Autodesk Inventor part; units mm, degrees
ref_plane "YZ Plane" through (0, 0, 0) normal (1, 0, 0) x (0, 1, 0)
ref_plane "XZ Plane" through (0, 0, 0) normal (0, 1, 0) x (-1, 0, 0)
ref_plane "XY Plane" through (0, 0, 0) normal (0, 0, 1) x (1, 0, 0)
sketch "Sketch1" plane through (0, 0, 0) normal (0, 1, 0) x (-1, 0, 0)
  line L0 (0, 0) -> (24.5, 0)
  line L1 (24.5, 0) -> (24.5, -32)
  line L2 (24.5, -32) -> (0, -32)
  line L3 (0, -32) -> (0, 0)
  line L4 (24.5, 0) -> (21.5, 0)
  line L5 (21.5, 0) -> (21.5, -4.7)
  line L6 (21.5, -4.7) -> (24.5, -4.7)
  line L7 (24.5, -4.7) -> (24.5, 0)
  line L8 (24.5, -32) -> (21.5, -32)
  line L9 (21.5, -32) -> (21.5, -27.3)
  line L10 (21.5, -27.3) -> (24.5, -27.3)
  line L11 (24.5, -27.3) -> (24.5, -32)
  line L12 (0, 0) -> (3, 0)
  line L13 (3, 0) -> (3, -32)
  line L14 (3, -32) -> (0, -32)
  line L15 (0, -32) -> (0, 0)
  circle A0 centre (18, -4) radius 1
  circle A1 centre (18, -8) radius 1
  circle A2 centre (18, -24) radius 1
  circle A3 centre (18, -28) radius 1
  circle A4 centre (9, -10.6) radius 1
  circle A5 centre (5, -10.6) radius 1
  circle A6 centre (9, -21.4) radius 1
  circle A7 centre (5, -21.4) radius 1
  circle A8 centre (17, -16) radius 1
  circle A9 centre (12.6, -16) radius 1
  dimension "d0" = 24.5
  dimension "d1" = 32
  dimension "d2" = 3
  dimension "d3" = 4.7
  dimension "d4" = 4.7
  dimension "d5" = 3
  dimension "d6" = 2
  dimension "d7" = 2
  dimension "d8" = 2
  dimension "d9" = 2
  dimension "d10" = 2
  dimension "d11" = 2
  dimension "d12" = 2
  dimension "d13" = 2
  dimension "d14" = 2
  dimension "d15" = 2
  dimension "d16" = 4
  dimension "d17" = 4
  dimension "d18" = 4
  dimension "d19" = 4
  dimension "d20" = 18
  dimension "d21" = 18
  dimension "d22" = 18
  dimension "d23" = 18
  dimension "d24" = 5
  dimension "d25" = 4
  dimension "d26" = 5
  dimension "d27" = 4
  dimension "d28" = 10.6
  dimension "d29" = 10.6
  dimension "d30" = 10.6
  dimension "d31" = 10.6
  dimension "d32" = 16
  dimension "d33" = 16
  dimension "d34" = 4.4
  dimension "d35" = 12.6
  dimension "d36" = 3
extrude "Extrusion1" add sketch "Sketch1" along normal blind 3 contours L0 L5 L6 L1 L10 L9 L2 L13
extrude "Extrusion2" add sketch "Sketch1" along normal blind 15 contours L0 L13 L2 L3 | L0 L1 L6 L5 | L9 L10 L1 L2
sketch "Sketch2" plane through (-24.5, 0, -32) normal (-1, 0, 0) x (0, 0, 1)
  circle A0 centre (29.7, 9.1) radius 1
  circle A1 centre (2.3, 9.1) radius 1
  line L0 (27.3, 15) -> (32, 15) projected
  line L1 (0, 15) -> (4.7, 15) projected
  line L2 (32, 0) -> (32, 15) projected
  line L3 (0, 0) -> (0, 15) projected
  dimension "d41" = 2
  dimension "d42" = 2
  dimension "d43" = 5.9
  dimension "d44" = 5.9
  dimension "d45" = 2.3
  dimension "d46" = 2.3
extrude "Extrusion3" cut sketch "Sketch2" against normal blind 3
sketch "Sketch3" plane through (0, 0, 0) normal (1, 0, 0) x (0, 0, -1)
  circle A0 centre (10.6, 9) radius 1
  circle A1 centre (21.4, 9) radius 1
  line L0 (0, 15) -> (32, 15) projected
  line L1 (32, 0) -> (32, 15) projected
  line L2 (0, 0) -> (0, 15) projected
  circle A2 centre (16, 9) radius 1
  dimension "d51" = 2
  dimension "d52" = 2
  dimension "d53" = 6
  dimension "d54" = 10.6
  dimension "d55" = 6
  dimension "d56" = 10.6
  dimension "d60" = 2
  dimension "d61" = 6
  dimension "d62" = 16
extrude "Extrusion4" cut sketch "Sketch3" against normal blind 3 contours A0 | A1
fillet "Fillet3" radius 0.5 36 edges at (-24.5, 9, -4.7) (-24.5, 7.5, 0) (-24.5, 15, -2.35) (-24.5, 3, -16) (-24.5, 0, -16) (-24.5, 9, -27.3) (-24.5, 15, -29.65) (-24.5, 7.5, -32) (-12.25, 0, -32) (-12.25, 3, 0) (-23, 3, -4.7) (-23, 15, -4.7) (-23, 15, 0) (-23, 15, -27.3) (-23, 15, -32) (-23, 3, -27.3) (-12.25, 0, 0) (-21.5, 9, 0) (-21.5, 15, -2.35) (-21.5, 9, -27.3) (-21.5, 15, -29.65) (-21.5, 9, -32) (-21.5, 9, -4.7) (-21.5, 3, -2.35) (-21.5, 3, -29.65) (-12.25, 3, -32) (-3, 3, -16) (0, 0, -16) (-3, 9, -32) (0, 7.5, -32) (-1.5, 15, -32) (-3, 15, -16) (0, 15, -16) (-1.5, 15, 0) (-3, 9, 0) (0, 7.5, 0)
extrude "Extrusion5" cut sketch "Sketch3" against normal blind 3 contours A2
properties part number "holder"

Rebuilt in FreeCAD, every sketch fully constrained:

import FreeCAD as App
import Part
import Sketcher
from FreeCAD import Vector


def edges_at(feature, points):
    """Names of the edges that pass closest to the given points."""
    edges = feature.Shape.Edges
    near = lambda p: min(range(len(edges)), key=lambda i: edges[i].distToShape(Part.Vertex(*p))[0])
    return sorted({f"Edge{near(p) + 1}" for p in points})

doc = App.newDocument("Part")
body = doc.addObject("PartDesign::Body", "Body")

# Sketch on XZ plane
sketch1 = body.newObject("Sketcher::SketchObject", "Sketch")
sketch1.AttachmentSupport = (doc.getObject("XZ_Plane"), [""])
sketch1.MapMode = "FlatFace"
sketch1.addGeometry([
    Part.LineSegment(Vector(-21.5, 0, 0), Vector(-3, 0, 0)),  # 0
    Part.LineSegment(Vector(-3, 0, 0), Vector(-3, -32, 0)),  # 1
    Part.LineSegment(Vector(-3, -32, 0), Vector(-21.5, -32, 0)),  # 2
    Part.LineSegment(Vector(-21.5, -32, 0), Vector(-21.5, -27.3, 0)),  # 3
    Part.LineSegment(Vector(-21.5, -27.3, 0), Vector(-24.5, -27.3, 0)),  # 4
    Part.LineSegment(Vector(-24.5, -27.3, 0), Vector(-24.5, -4.7, 0)),  # 5
    Part.LineSegment(Vector(-24.5, -4.7, 0), Vector(-21.5, -4.7, 0)),  # 6
    Part.LineSegment(Vector(-21.5, -4.7, 0), Vector(-21.5, 0, 0)),  # 7
    Part.Circle(Vector(-5, -21.4, 0), Vector(0, 0, 1), 1),  # 8
    Part.Circle(Vector(-9, -21.4, 0), Vector(0, 0, 1), 1),  # 9
    Part.Circle(Vector(-18, -28, 0), Vector(0, 0, 1), 1),  # 10
    Part.Circle(Vector(-18, -24, 0), Vector(0, 0, 1), 1),  # 11
    Part.Circle(Vector(-5, -10.6, 0), Vector(0, 0, 1), 1),  # 12
    Part.Circle(Vector(-9, -10.6, 0), Vector(0, 0, 1), 1),  # 13
    Part.Circle(Vector(-12.6, -16, 0), Vector(0, 0, 1), 1),  # 14
    Part.Circle(Vector(-17, -16, 0), Vector(0, 0, 1), 1),  # 15
    Part.Circle(Vector(-18, -8, 0), Vector(0, 0, 1), 1),  # 16
    Part.Circle(Vector(-18, -4, 0), Vector(0, 0, 1), 1),  # 17
], False)
sketch1.addConstraint([
    Sketcher.Constraint("Coincident", 0, 2, 1, 1),
    Sketcher.Constraint("Coincident", 1, 2, 2, 1),
    Sketcher.Constraint("Coincident", 2, 2, 3, 1),
    Sketcher.Constraint("Coincident", 3, 2, 4, 1),
    Sketcher.Constraint("Coincident", 4, 2, 5, 1),
    Sketcher.Constraint("Coincident", 5, 2, 6, 1),
    Sketcher.Constraint("Coincident", 6, 2, 7, 1),
    Sketcher.Constraint("Coincident", 7, 2, 0, 1),
    Sketcher.Constraint("Horizontal", 0),
    Sketcher.Constraint("Vertical", 1),
    Sketcher.Constraint("Horizontal", 2),
    Sketcher.Constraint("Vertical", 3),
    Sketcher.Constraint("Horizontal", 4),
    Sketcher.Constraint("Vertical", 5),
    Sketcher.Constraint("Horizontal", 6),
    Sketcher.Constraint("Vertical", 7),
    Sketcher.Constraint("Equal", 8, 9),
    Sketcher.Constraint("Equal", 9, 10),
    Sketcher.Constraint("Equal", 10, 11),
    Sketcher.Constraint("Equal", 11, 12),
    Sketcher.Constraint("Equal", 12, 13),
    Sketcher.Constraint("Equal", 13, 14),
    Sketcher.Constraint("Equal", 14, 15),
    Sketcher.Constraint("Equal", 15, 16),
    Sketcher.Constraint("Equal", 16, 17),
    Sketcher.Constraint("PointOnObject", 0, 2, -1),
    Sketcher.Constraint("Horizontal", 8, 3, 9, 3),
    Sketcher.Constraint("Horizontal", 12, 3, 13, 3),
    Sketcher.Constraint("Horizontal", 14, 3, 15, 3),
    Sketcher.Constraint("Vertical", 10, 3, 11, 3),
    Sketcher.Constraint("Vertical", 8, 3, 12, 3),
    Sketcher.Constraint("Vertical", 9, 3, 13, 3),
    Sketcher.Constraint("Vertical", 11, 3, 16, 3),
    Sketcher.Constraint("Vertical", 16, 3, 17, 3),
    Sketcher.Constraint("Vertical", 3, 2, 6, 2),
    Sketcher.Constraint("Equal", 3, 7),
    Sketcher.Constraint("Diameter", 8, 2.0),
    Sketcher.Constraint("DistanceX", 4, 2, 4, 1, 3.0),
    Sketcher.Constraint("DistanceY", 1, 2, 1, 1, 32.0),
    Sketcher.Constraint("DistanceY", 3, 1, 3, 2, 4.7),
    Sketcher.Constraint("DistanceX", 8, 3, -1, 1, 5.0),
    Sketcher.Constraint("DistanceX", 10, 3, -1, 1, 18.0),
    Sketcher.Constraint("DistanceY", 14, 3, -1, 1, 16.0),
    Sketcher.Constraint("DistanceY", 17, 3, -1, 1, 4.0),
    Sketcher.Constraint("DistanceX", 0, 2, -1, 1, 3.0),
    Sketcher.Constraint("DistanceX", 9, 3, 8, 3, 4.0),
    Sketcher.Constraint("DistanceY", 10, 3, 11, 3, 4.0),
    Sketcher.Constraint("DistanceY", 11, 3, 16, 3, 16.0),
    Sketcher.Constraint("DistanceY", 16, 3, 17, 3, 4.0),
    Sketcher.Constraint("DistanceY", 12, 3, -1, 1, 10.6),
    Sketcher.Constraint("DistanceX", 14, 3, -1, 1, 12.6),
    Sketcher.Constraint("DistanceX", 4, 2, -1, 1, 24.5),
    Sketcher.Constraint("DistanceX", 15, 3, 14, 3, 4.4),
    Sketcher.Constraint("DistanceY", 1, 2, 8, 3, 10.6),
])
pad1 = body.newObject("PartDesign::Pad", "Pad")
pad1.Profile = sketch1
pad1.Length = 3
pad1.Reversed = True

# Sketch on XZ plane
sketch2 = body.newObject("Sketcher::SketchObject", "Sketch001")
sketch2.AttachmentSupport = (doc.getObject("XZ_Plane"), [""])
sketch2.MapMode = "FlatFace"
sketch2.addGeometry([
    Part.LineSegment(Vector(-3, 0, 0), Vector(0, 0, 0)),  # 0
    Part.LineSegment(Vector(0, 0, 0), Vector(0, -32, 0)),  # 1
    Part.LineSegment(Vector(0, -32, 0), Vector(-3, -32, 0)),  # 2
    Part.LineSegment(Vector(-3, -32, 0), Vector(-3, 0, 0)),  # 3
    Part.LineSegment(Vector(-24.5, 0, 0), Vector(-21.5, 0, 0)),  # 4
    Part.LineSegment(Vector(-21.5, 0, 0), Vector(-21.5, -4.7, 0)),  # 5
    Part.LineSegment(Vector(-21.5, -4.7, 0), Vector(-24.5, -4.7, 0)),  # 6
    Part.LineSegment(Vector(-24.5, -4.7, 0), Vector(-24.5, 0, 0)),  # 7
    Part.LineSegment(Vector(-21.5, -27.3, 0), Vector(-21.5, -32, 0)),  # 8
    Part.LineSegment(Vector(-21.5, -32, 0), Vector(-24.5, -32, 0)),  # 9
    Part.LineSegment(Vector(-24.5, -32, 0), Vector(-24.5, -27.3, 0)),  # 10
    Part.LineSegment(Vector(-24.5, -27.3, 0), Vector(-21.5, -27.3, 0)),  # 11
], False)
sketch2.addConstraint([
    Sketcher.Constraint("Coincident", 0, 2, 1, 1),
    Sketcher.Constraint("Coincident", 1, 2, 2, 1),
    Sketcher.Constraint("Coincident", 2, 2, 3, 1),
    Sketcher.Constraint("Coincident", 3, 2, 0, 1),
    Sketcher.Constraint("Coincident", 4, 2, 5, 1),
    Sketcher.Constraint("Coincident", 5, 2, 6, 1),
    Sketcher.Constraint("Coincident", 6, 2, 7, 1),
    Sketcher.Constraint("Coincident", 7, 2, 4, 1),
    Sketcher.Constraint("Coincident", 8, 2, 9, 1),
    Sketcher.Constraint("Coincident", 9, 2, 10, 1),
    Sketcher.Constraint("Coincident", 10, 2, 11, 1),
    Sketcher.Constraint("Coincident", 11, 2, 8, 1),
    Sketcher.Constraint("Horizontal", 0),
    Sketcher.Constraint("Vertical", 1),
    Sketcher.Constraint("Horizontal", 2),
    Sketcher.Constraint("Vertical", 3),
    Sketcher.Constraint("Horizontal", 4),
    Sketcher.Constraint("Vertical", 5),
    Sketcher.Constraint("Horizontal", 6),
    Sketcher.Constraint("Vertical", 7),
    Sketcher.Constraint("Vertical", 8),
    Sketcher.Constraint("Horizontal", 9),
    Sketcher.Constraint("Vertical", 10),
    Sketcher.Constraint("Horizontal", 11),
    Sketcher.Constraint("Coincident", 0, 2, -1, 1),
    Sketcher.Constraint("PointOnObject", 4, 2, -1),
    Sketcher.Constraint("Horizontal", 2, 2, 8, 2),
    Sketcher.Constraint("Vertical", 5, 2, 8, 2),
    Sketcher.Constraint("Vertical", 7, 2, 9, 2),
    Sketcher.Constraint("Equal", 2, 4),
    Sketcher.Constraint("Equal", 7, 8),
    Sketcher.Constraint("DistanceX", 0, 1, 0, 2, 3.0),
    Sketcher.Constraint("DistanceY", 1, 2, 1, 1, 32.0),
    Sketcher.Constraint("DistanceY", 5, 2, 5, 1, 4.7),
    Sketcher.Constraint("DistanceX", 6, 2, -1, 1, 24.5),
])
pad2 = body.newObject("PartDesign::Pad", "Pad001")
pad2.Profile = sketch2
pad2.Length = 15
pad2.Reversed = True

# Sketch on YZ plane
sketch3 = body.newObject("Sketcher::SketchObject", "Sketch002")
sketch3.AttachmentSupport = (doc.getObject("YZ_Plane"), [""])
sketch3.MapMode = "FlatFace"
sketch3.AttachmentOffset = App.Placement(Vector(0, 0, -24.5), App.Rotation())
sketch3.addGeometry([
    Part.Circle(Vector(9.1, -2.3, 0), Vector(0, 0, 1), 1),
    Part.Circle(Vector(9.1, -29.7, 0), Vector(0, 0, 1), 1),
], False)
sketch3.addConstraint([
    Sketcher.Constraint("Equal", 0, 1),
    Sketcher.Constraint("Vertical", 0, 3, 1, 3),
    Sketcher.Constraint("Diameter", 0, 2.0),
    Sketcher.Constraint("DistanceY", 0, 3, -1, 1, 2.3),
    Sketcher.Constraint("DistanceX", -1, 1, 0, 3, 9.1),
    Sketcher.Constraint("DistanceY", 1, 3, -1, 1, 29.7),
])
pocket1 = body.newObject("PartDesign::Pocket", "Pocket")
pocket1.Profile = sketch3
pocket1.Length = 3
pocket1.Reversed = True

# Sketch on YZ plane
sketch4 = body.newObject("Sketcher::SketchObject", "Sketch003")
sketch4.AttachmentSupport = (doc.getObject("YZ_Plane"), [""])
sketch4.MapMode = "FlatFace"
sketch4.addGeometry([
    Part.Circle(Vector(9, -10.6, 0), Vector(0, 0, 1), 1),
    Part.Circle(Vector(9, -21.4, 0), Vector(0, 0, 1), 1),
], False)
sketch4.addConstraint([
    Sketcher.Constraint("Equal", 0, 1),
    Sketcher.Constraint("Vertical", 0, 3, 1, 3),
    Sketcher.Constraint("Diameter", 0, 2.0),
    Sketcher.Constraint("DistanceY", 0, 3, -1, 1, 10.6),
    Sketcher.Constraint("DistanceX", -1, 1, 0, 3, 9.0),
    Sketcher.Constraint("DistanceY", 1, 3, -1, 1, 21.4),
])
pocket2 = body.newObject("PartDesign::Pocket", "Pocket001")
pocket2.Profile = sketch4
pocket2.Length = 3
doc.recompute()

fillet = body.newObject("PartDesign::Fillet", "Fillet")
fillet.Base = (pocket2, edges_at(pocket2, [
    (-24.5, 9, -4.7),
    (-24.5, 7.5, 0),
    (-24.5, 15, -2.35),
    (-24.5, 3, -16),
    (-24.5, 0, -16),
    (-24.5, 9, -27.3),
    (-24.5, 15, -29.65),
    (-24.5, 7.5, -32),
    (-12.25, 0, -32),
    (-12.25, 3, 0),
    (-23, 3, -4.7),
    (-23, 15, -4.7),
    (-23, 15, 0),
    (-23, 15, -27.3),
    (-23, 15, -32),
    (-23, 3, -27.3),
    (-12.25, 0, 0),
    (-21.5, 9, 0),
    (-21.5, 15, -2.35),
    (-21.5, 9, -27.3),
    (-21.5, 15, -29.65),
    (-21.5, 9, -32),
    (-21.5, 9, -4.7),
    (-21.5, 3, -2.35),
    (-21.5, 3, -29.65),
    (-12.25, 3, -32),
    (-3, 3, -16),
    (0, 0, -16),
    (-3, 9, -32),
    (0, 7.5, -32),
    (-1.5, 15, -32),
    (-3, 15, -16),
    (0, 15, -16),
    (-1.5, 15, 0),
    (-3, 9, 0),
    (0, 7.5, 0),
]))
fillet.Radius = 0.5

# Sketch on YZ plane
sketch5 = body.newObject("Sketcher::SketchObject", "Sketch004")
sketch5.AttachmentSupport = (doc.getObject("YZ_Plane"), [""])
sketch5.MapMode = "FlatFace"
sketch5.addGeometry(Part.Circle(Vector(9, -16, 0), Vector(0, 0, 1), 1), False)
sketch5.addConstraint([
    Sketcher.Constraint("Diameter", 0, 2.0),
    Sketcher.Constraint("DistanceY", 0, 3, -1, 1, 16.0),
    Sketcher.Constraint("DistanceX", -1, 1, 0, 3, 9.0),
])
pocket3 = body.newObject("PartDesign::Pocket", "Pocket002")
pocket3.Profile = sketch5
pocket3.Length = 3

doc.recompute()
